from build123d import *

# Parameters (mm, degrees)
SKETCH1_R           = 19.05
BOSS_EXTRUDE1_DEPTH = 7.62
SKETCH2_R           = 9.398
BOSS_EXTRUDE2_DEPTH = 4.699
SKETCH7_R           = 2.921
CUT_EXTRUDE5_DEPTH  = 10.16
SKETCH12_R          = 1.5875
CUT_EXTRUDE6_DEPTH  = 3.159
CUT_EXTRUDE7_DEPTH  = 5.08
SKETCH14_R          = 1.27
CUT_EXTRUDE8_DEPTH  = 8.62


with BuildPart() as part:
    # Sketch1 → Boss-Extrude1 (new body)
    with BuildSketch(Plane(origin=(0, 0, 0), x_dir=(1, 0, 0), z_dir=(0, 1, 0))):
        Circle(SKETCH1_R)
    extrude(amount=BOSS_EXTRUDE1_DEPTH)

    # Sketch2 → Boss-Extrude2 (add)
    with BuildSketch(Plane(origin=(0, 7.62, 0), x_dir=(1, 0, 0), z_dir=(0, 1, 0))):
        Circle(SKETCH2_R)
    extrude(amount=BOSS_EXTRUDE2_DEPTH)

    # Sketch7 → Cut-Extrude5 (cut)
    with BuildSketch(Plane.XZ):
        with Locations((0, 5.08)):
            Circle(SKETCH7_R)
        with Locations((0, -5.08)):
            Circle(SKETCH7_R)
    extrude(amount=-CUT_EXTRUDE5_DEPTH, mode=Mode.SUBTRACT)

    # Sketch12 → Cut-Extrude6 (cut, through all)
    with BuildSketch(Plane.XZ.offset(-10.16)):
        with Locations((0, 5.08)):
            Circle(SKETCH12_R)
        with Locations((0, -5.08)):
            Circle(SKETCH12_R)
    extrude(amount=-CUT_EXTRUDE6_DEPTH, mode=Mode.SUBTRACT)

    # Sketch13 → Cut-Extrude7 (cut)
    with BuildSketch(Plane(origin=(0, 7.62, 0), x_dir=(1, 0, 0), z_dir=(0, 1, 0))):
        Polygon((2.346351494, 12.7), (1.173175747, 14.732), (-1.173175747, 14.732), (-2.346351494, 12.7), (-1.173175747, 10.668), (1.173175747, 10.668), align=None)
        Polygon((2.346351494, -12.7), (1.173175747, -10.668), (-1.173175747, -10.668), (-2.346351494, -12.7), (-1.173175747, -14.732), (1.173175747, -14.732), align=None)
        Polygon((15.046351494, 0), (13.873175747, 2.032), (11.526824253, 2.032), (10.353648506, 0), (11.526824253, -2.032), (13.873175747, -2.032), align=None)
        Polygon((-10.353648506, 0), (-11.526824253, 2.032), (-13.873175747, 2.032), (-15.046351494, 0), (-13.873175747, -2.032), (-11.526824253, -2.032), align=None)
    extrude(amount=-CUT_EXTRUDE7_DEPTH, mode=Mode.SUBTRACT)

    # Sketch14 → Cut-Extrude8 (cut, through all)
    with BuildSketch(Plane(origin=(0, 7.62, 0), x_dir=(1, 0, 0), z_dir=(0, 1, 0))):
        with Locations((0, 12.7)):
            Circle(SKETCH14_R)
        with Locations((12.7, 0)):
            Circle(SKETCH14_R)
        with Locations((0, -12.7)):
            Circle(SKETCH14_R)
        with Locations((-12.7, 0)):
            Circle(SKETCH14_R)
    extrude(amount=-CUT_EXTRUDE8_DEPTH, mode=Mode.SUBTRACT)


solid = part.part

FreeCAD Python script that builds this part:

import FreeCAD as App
import Part
import Sketcher

V = App.Vector
Q = App.Units.Quantity


def add_polygon(sketch, points):
    """Adds a closed chain of lines whose ends are joined by coincident constraints."""
    first, n = sketch.GeometryCount, len(points)
    for a, b in zip(points, points[1:] + points[:1]):
        sketch.addGeometry(Part.LineSegment(App.Vector(*a, 0), App.Vector(*b, 0)), False)
    for i in range(n):
        sketch.addConstraint(Sketcher.Constraint("Coincident", first + i, 2, first + (i + 1) % n, 1))

doc = App.newDocument("Part")
body = doc.addObject("PartDesign::Body", "Body")

# Sketch on XZ plane
sketch1 = body.newObject("Sketcher::SketchObject", "Sketch")
sketch1.AttachmentSupport = (doc.getObject("XZ_Plane"), [""])
sketch1.MapMode = "FlatFace"
sketch1.addGeometry(Part.Circle(V(0, 0, 0), V(0, 0, 1), 19.05), False)
sketch1.addConstraint([
    Sketcher.Constraint("Coincident", 0, 3, -1, 1),
    Sketcher.Constraint("Diameter", 0, Q("1.5 in")),
])
pad1 = body.newObject("PartDesign::Pad", "Pad")
pad1.Profile = sketch1
pad1.Length = Q("0.3 in")
pad1.Reversed = True

# Sketch on XZ plane
sketch2 = body.newObject("Sketcher::SketchObject", "Sketch001")
sketch2.AttachmentSupport = (doc.getObject("XZ_Plane"), [""])
sketch2.MapMode = "FlatFace"
sketch2.AttachmentOffset = App.Placement(V(0, 0, -0.3 * 25.4), App.Rotation())
sketch2.addGeometry(Part.Circle(V(0, 0, 0), V(0, 0, 1), 9.398), False)
sketch2.addConstraint([
    Sketcher.Constraint("Coincident", 0, 3, -1, 1),
    Sketcher.Constraint("Diameter", 0, Q("0.74 in")),
])
pad2 = body.newObject("PartDesign::Pad", "Pad001")
pad2.Profile = sketch2
pad2.Length = Q("0.185 in")
pad2.Reversed = True

# Sketch on XZ plane
sketch3 = body.newObject("Sketcher::SketchObject", "Sketch002")
sketch3.AttachmentSupport = (doc.getObject("XZ_Plane"), [""])
sketch3.MapMode = "FlatFace"
sketch3.addGeometry([
    Part.Circle(V(0, 5.08, 0), V(0, 0, 1), 2.921),
    Part.Circle(V(0, -5.08, 0), V(0, 0, 1), 2.921),
], False)
sketch3.addConstraint([
    Sketcher.Constraint("Equal", 0, 1),
    Sketcher.Constraint("Symmetric", 0, 3, 1, 3, -1, 1),
    Sketcher.Constraint("PointOnObject", 0, 3, -2),
    Sketcher.Constraint("Diameter", 0, Q("0.23 in")),
    Sketcher.Constraint("DistanceY", -1, 1, 0, 3, Q("0.2 in")),
])
pocket1 = body.newObject("PartDesign::Pocket", "Pocket")
pocket1.Profile = sketch3
pocket1.Length = Q("0.4 in")

# Sketch on XZ plane
sketch4 = body.newObject("Sketcher::SketchObject", "Sketch003")
sketch4.AttachmentSupport = (doc.getObject("XZ_Plane"), [""])
sketch4.MapMode = "FlatFace"
sketch4.AttachmentOffset = App.Placement(V(0, 0, -0.4 * 25.4), App.Rotation())
sketch4.addGeometry([
    Part.Circle(V(0, 5.08, 0), V(0, 0, 1), 1.5875),
    Part.Circle(V(0, -5.08, 0), V(0, 0, 1), 1.5875),
], False)
sketch4.addConstraint([
    Sketcher.Constraint("Equal", 0, 1),
    Sketcher.Constraint("Symmetric", 0, 3, 1, 3, -1, 1),
    Sketcher.Constraint("PointOnObject", 0, 3, -2),
    Sketcher.Constraint("Diameter", 0, Q("0.125 in")),
    Sketcher.Constraint("DistanceY", -1, 1, 0, 3, Q("0.2 in")),
])
pocket2 = body.newObject("PartDesign::Pocket", "Pocket001")
pocket2.Profile = sketch4
pocket2.Type = "ThroughAll"

# Sketch on XZ plane
sketch5 = body.newObject("Sketcher::SketchObject", "Sketch004")
sketch5.AttachmentSupport = (doc.getObject("XZ_Plane"), [""])
sketch5.MapMode = "FlatFace"
sketch5.AttachmentOffset = App.Placement(V(0, 0, -0.3 * 25.4), App.Rotation())
add_polygon(sketch5, [(2.346351, -12.7), (1.173176, -14.732), (-1.173176, -14.732), (-2.346351, -12.7), (-1.173176, -10.668), (1.173176, -10.668)])  # lines 0-5
add_polygon(sketch5, [(2.346351, 12.7), (1.173176, 10.668), (-1.173176, 10.668), (-2.346351, 12.7), (-1.173176, 14.732), (1.173176, 14.732)])  # lines 6-11
add_polygon(sketch5, [(15.046351, 0), (13.873176, -2.032), (11.526824, -2.032), (10.353649, 0), (11.526824, 2.032), (13.873176, 2.032)])  # lines 12-17
add_polygon(sketch5, [(-10.353649, 0), (-11.526824, -2.032), (-13.873176, -2.032), (-15.046351, 0), (-13.873176, 2.032), (-11.526824, 2.032)])  # lines 18-23
sketch5.addConstraint([
    Sketcher.Constraint("Horizontal", 1),
    Sketcher.Constraint("Horizontal", 4),
    Sketcher.Constraint("Horizontal", 7),
    Sketcher.Constraint("Horizontal", 10),
    Sketcher.Constraint("Horizontal", 13),
    Sketcher.Constraint("Horizontal", 16),
    Sketcher.Constraint("Horizontal", 19),
    Sketcher.Constraint("Horizontal", 22),
    Sketcher.Constraint("Symmetric", 3, 2, 6, 2, -1, 1),
    Sketcher.Constraint("Symmetric", 5, 2, 8, 2, -1, 1),
    Sketcher.Constraint("Symmetric", 0, 2, 9, 2, -1, 1),
    Sketcher.Constraint("Symmetric", 2, 2, 11, 2, -1, 1),
    Sketcher.Constraint("Symmetric", 15, 2, 18, 2, -1, 1),
    Sketcher.Constraint("Symmetric", 17, 2, 20, 2, -1, 1),
    Sketcher.Constraint("Symmetric", 12, 2, 21, 2, -1, 1),
    Sketcher.Constraint("Symmetric", 14, 2, 23, 2, -1, 1),
    Sketcher.Constraint("Symmetric", 2, 2, 5, 2, -2),
    Sketcher.Constraint("Symmetric", 13, 2, 18, 2, -2),
    Sketcher.Constraint("PointOnObject", 14, 2, -1),
    Sketcher.Constraint("PointOnObject", 17, 2, -1),
    Sketcher.Constraint("Parallel", 0, 3),
    Sketcher.Constraint("Parallel", 2, 5),
    Sketcher.Constraint("Parallel", 5, 8),
    Sketcher.Constraint("Parallel", 8, 11),
    Sketcher.Constraint("Parallel", 9, 12),
    Sketcher.Constraint("Parallel", 11, 14),
    Sketcher.Constraint("Parallel", 12, 15),
    Sketcher.Constraint("Parallel", 14, 17),
    Sketcher.Constraint("Parallel", 17, 20),
    Sketcher.Constraint("Parallel", 20, 23),
    Sketcher.Constraint("Vertical", 1, 2, 3, 2),
    Sketcher.Constraint("Equal", 10, 13),
    Sketcher.Constraint("Equal", 11, 12),
    Sketcher.Constraint("Angle", 0, Q("-120 deg")),
    Sketcher.Constraint("DistanceY", 0, 2, 6, 2, Q("1 in")),
    Sketcher.Constraint("DistanceX", 4, 2, 12, 2, Q("0.5 in")),
    Sketcher.Constraint("DistanceY", 0, 2, -1, 1, Q("0.58 in")),
    Sketcher.Constraint("DistanceX", 1, 2, 1, 1, 2.346351),
])
pocket3 = body.newObject("PartDesign::Pocket", "Pocket002")
pocket3.Profile = sketch5
pocket3.Length = Q("0.2 in")
pocket3.Reversed = True

# Sketch on XZ plane
sketch6 = body.newObject("Sketcher::SketchObject", "Sketch005")
sketch6.AttachmentSupport = (doc.getObject("XZ_Plane"), [""])
sketch6.MapMode = "FlatFace"
sketch6.AttachmentOffset = App.Placement(V(0, 0, -0.3 * 25.4), App.Rotation())
sketch6.addGeometry([
    Part.Circle(V(0, -12.7, 0), V(0, 0, 1), 1.27),
    Part.Circle(V(12.7, 0, 0), V(0, 0, 1), 1.27),
    Part.Circle(V(0, 12.7, 0), V(0, 0, 1), 1.27),
    Part.Circle(V(-12.7, 0, 0), V(0, 0, 1), 1.27),
], False)
sketch6.addConstraint([
    Sketcher.Constraint("Equal", 0, 1),
    Sketcher.Constraint("Equal", 1, 2),
    Sketcher.Constraint("Equal", 2, 3),
    Sketcher.Constraint("Symmetric", 0, 3, 2, 3, -1, 1),
    Sketcher.Constraint("Symmetric", 1, 3, 3, 3, -1, 1),
    Sketcher.Constraint("PointOnObject", 0, 3, -2),
    Sketcher.Constraint("PointOnObject", 1, 3, -1),
    Sketcher.Constraint("Diameter", 0, Q("0.1 in")),
    Sketcher.Constraint("DistanceY", 0, 3, 2, 3, Q("1 in")),
    Sketcher.Constraint("DistanceX", 3, 3, 1, 3, Q("1 in")),
])
pocket4 = body.newObject("PartDesign::Pocket", "Pocket003")
pocket4.Profile = sketch6
pocket4.Type = "ThroughAll"
pocket4.Reversed = True

doc.recompute()
